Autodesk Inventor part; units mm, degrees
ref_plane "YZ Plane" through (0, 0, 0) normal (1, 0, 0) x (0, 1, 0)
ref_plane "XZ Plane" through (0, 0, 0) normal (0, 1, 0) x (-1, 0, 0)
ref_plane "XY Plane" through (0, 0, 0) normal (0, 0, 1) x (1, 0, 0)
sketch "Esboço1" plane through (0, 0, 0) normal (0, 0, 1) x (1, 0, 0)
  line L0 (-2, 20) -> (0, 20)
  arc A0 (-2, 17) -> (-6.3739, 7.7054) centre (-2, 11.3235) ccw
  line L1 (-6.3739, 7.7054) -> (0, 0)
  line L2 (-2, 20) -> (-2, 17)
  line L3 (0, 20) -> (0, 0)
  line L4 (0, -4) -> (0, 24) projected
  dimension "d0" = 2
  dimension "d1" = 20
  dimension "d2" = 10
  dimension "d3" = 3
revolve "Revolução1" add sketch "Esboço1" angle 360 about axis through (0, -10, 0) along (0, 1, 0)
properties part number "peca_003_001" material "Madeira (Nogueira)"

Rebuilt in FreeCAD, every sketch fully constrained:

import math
import FreeCAD as App
import Part
import Sketcher
Q = App.Units.Quantity

doc = App.newDocument("Part")
body = doc.addObject("PartDesign::Body", "Body")

# Sketch on XY plane
sketch1 = body.newObject("Sketcher::SketchObject", "Sketch")
sketch1.AttachmentSupport = (doc.getObject("XY_Plane"), [""])
sketch1.MapMode = "FlatFace"
sketch1.addGeometry([
    Part.LineSegment(App.Vector(0, 20, 0), App.Vector(-2, 20, 0)),  # 0
    Part.LineSegment(App.Vector(-2, 20, 0), App.Vector(-2, 17, 0)),  # 1
    Part.ArcOfCircle(Part.Circle(App.Vector(-2, 11.3235, 0), App.Vector(0, 0, 1), 5.6765), math.radians(90), math.radians(219.59763)),  # 2
    Part.LineSegment(App.Vector(-6.3739, 7.7054, 0), App.Vector(0, 0, 0)),  # 3
    Part.LineSegment(App.Vector(0, 0, 0), App.Vector(0, 20, 0)),  # 4
], False)
sketch1.addConstraint([
    Sketcher.Constraint("Coincident", 0, 2, 1, 1),
    Sketcher.Constraint("Coincident", 1, 2, 2, 1),
    Sketcher.Constraint("Tangent", 2, 2, 3, 1),
    Sketcher.Constraint("Coincident", 3, 2, 4, 1),
    Sketcher.Constraint("Coincident", 4, 2, 0, 1),
    Sketcher.Constraint("Horizontal", 0),
    Sketcher.Constraint("Vertical", 1),
    Sketcher.Constraint("Vertical", 4),
    Sketcher.Constraint("Coincident", 3, 2, -1, 1),
    Sketcher.Constraint("Vertical", 2, 3, 0, 2),
    Sketcher.Constraint("DistanceX", 0, 2, 0, 1, Q("2 mm")),
    Sketcher.Constraint("DistanceY", 1, 2, 1, 1, Q("3 mm")),
    Sketcher.Constraint("DistanceY", 4, 1, 4, 2, Q("20 mm")),
    Sketcher.Constraint("Distance", 3, Q("10 mm")),
])
revolution = body.newObject("PartDesign::Revolution", "Revolution")
revolution.Profile = sketch1
revolution.ReferenceAxis = (sketch1, ["V_Axis"])
revolution.Angle = 360

doc.recompute()
